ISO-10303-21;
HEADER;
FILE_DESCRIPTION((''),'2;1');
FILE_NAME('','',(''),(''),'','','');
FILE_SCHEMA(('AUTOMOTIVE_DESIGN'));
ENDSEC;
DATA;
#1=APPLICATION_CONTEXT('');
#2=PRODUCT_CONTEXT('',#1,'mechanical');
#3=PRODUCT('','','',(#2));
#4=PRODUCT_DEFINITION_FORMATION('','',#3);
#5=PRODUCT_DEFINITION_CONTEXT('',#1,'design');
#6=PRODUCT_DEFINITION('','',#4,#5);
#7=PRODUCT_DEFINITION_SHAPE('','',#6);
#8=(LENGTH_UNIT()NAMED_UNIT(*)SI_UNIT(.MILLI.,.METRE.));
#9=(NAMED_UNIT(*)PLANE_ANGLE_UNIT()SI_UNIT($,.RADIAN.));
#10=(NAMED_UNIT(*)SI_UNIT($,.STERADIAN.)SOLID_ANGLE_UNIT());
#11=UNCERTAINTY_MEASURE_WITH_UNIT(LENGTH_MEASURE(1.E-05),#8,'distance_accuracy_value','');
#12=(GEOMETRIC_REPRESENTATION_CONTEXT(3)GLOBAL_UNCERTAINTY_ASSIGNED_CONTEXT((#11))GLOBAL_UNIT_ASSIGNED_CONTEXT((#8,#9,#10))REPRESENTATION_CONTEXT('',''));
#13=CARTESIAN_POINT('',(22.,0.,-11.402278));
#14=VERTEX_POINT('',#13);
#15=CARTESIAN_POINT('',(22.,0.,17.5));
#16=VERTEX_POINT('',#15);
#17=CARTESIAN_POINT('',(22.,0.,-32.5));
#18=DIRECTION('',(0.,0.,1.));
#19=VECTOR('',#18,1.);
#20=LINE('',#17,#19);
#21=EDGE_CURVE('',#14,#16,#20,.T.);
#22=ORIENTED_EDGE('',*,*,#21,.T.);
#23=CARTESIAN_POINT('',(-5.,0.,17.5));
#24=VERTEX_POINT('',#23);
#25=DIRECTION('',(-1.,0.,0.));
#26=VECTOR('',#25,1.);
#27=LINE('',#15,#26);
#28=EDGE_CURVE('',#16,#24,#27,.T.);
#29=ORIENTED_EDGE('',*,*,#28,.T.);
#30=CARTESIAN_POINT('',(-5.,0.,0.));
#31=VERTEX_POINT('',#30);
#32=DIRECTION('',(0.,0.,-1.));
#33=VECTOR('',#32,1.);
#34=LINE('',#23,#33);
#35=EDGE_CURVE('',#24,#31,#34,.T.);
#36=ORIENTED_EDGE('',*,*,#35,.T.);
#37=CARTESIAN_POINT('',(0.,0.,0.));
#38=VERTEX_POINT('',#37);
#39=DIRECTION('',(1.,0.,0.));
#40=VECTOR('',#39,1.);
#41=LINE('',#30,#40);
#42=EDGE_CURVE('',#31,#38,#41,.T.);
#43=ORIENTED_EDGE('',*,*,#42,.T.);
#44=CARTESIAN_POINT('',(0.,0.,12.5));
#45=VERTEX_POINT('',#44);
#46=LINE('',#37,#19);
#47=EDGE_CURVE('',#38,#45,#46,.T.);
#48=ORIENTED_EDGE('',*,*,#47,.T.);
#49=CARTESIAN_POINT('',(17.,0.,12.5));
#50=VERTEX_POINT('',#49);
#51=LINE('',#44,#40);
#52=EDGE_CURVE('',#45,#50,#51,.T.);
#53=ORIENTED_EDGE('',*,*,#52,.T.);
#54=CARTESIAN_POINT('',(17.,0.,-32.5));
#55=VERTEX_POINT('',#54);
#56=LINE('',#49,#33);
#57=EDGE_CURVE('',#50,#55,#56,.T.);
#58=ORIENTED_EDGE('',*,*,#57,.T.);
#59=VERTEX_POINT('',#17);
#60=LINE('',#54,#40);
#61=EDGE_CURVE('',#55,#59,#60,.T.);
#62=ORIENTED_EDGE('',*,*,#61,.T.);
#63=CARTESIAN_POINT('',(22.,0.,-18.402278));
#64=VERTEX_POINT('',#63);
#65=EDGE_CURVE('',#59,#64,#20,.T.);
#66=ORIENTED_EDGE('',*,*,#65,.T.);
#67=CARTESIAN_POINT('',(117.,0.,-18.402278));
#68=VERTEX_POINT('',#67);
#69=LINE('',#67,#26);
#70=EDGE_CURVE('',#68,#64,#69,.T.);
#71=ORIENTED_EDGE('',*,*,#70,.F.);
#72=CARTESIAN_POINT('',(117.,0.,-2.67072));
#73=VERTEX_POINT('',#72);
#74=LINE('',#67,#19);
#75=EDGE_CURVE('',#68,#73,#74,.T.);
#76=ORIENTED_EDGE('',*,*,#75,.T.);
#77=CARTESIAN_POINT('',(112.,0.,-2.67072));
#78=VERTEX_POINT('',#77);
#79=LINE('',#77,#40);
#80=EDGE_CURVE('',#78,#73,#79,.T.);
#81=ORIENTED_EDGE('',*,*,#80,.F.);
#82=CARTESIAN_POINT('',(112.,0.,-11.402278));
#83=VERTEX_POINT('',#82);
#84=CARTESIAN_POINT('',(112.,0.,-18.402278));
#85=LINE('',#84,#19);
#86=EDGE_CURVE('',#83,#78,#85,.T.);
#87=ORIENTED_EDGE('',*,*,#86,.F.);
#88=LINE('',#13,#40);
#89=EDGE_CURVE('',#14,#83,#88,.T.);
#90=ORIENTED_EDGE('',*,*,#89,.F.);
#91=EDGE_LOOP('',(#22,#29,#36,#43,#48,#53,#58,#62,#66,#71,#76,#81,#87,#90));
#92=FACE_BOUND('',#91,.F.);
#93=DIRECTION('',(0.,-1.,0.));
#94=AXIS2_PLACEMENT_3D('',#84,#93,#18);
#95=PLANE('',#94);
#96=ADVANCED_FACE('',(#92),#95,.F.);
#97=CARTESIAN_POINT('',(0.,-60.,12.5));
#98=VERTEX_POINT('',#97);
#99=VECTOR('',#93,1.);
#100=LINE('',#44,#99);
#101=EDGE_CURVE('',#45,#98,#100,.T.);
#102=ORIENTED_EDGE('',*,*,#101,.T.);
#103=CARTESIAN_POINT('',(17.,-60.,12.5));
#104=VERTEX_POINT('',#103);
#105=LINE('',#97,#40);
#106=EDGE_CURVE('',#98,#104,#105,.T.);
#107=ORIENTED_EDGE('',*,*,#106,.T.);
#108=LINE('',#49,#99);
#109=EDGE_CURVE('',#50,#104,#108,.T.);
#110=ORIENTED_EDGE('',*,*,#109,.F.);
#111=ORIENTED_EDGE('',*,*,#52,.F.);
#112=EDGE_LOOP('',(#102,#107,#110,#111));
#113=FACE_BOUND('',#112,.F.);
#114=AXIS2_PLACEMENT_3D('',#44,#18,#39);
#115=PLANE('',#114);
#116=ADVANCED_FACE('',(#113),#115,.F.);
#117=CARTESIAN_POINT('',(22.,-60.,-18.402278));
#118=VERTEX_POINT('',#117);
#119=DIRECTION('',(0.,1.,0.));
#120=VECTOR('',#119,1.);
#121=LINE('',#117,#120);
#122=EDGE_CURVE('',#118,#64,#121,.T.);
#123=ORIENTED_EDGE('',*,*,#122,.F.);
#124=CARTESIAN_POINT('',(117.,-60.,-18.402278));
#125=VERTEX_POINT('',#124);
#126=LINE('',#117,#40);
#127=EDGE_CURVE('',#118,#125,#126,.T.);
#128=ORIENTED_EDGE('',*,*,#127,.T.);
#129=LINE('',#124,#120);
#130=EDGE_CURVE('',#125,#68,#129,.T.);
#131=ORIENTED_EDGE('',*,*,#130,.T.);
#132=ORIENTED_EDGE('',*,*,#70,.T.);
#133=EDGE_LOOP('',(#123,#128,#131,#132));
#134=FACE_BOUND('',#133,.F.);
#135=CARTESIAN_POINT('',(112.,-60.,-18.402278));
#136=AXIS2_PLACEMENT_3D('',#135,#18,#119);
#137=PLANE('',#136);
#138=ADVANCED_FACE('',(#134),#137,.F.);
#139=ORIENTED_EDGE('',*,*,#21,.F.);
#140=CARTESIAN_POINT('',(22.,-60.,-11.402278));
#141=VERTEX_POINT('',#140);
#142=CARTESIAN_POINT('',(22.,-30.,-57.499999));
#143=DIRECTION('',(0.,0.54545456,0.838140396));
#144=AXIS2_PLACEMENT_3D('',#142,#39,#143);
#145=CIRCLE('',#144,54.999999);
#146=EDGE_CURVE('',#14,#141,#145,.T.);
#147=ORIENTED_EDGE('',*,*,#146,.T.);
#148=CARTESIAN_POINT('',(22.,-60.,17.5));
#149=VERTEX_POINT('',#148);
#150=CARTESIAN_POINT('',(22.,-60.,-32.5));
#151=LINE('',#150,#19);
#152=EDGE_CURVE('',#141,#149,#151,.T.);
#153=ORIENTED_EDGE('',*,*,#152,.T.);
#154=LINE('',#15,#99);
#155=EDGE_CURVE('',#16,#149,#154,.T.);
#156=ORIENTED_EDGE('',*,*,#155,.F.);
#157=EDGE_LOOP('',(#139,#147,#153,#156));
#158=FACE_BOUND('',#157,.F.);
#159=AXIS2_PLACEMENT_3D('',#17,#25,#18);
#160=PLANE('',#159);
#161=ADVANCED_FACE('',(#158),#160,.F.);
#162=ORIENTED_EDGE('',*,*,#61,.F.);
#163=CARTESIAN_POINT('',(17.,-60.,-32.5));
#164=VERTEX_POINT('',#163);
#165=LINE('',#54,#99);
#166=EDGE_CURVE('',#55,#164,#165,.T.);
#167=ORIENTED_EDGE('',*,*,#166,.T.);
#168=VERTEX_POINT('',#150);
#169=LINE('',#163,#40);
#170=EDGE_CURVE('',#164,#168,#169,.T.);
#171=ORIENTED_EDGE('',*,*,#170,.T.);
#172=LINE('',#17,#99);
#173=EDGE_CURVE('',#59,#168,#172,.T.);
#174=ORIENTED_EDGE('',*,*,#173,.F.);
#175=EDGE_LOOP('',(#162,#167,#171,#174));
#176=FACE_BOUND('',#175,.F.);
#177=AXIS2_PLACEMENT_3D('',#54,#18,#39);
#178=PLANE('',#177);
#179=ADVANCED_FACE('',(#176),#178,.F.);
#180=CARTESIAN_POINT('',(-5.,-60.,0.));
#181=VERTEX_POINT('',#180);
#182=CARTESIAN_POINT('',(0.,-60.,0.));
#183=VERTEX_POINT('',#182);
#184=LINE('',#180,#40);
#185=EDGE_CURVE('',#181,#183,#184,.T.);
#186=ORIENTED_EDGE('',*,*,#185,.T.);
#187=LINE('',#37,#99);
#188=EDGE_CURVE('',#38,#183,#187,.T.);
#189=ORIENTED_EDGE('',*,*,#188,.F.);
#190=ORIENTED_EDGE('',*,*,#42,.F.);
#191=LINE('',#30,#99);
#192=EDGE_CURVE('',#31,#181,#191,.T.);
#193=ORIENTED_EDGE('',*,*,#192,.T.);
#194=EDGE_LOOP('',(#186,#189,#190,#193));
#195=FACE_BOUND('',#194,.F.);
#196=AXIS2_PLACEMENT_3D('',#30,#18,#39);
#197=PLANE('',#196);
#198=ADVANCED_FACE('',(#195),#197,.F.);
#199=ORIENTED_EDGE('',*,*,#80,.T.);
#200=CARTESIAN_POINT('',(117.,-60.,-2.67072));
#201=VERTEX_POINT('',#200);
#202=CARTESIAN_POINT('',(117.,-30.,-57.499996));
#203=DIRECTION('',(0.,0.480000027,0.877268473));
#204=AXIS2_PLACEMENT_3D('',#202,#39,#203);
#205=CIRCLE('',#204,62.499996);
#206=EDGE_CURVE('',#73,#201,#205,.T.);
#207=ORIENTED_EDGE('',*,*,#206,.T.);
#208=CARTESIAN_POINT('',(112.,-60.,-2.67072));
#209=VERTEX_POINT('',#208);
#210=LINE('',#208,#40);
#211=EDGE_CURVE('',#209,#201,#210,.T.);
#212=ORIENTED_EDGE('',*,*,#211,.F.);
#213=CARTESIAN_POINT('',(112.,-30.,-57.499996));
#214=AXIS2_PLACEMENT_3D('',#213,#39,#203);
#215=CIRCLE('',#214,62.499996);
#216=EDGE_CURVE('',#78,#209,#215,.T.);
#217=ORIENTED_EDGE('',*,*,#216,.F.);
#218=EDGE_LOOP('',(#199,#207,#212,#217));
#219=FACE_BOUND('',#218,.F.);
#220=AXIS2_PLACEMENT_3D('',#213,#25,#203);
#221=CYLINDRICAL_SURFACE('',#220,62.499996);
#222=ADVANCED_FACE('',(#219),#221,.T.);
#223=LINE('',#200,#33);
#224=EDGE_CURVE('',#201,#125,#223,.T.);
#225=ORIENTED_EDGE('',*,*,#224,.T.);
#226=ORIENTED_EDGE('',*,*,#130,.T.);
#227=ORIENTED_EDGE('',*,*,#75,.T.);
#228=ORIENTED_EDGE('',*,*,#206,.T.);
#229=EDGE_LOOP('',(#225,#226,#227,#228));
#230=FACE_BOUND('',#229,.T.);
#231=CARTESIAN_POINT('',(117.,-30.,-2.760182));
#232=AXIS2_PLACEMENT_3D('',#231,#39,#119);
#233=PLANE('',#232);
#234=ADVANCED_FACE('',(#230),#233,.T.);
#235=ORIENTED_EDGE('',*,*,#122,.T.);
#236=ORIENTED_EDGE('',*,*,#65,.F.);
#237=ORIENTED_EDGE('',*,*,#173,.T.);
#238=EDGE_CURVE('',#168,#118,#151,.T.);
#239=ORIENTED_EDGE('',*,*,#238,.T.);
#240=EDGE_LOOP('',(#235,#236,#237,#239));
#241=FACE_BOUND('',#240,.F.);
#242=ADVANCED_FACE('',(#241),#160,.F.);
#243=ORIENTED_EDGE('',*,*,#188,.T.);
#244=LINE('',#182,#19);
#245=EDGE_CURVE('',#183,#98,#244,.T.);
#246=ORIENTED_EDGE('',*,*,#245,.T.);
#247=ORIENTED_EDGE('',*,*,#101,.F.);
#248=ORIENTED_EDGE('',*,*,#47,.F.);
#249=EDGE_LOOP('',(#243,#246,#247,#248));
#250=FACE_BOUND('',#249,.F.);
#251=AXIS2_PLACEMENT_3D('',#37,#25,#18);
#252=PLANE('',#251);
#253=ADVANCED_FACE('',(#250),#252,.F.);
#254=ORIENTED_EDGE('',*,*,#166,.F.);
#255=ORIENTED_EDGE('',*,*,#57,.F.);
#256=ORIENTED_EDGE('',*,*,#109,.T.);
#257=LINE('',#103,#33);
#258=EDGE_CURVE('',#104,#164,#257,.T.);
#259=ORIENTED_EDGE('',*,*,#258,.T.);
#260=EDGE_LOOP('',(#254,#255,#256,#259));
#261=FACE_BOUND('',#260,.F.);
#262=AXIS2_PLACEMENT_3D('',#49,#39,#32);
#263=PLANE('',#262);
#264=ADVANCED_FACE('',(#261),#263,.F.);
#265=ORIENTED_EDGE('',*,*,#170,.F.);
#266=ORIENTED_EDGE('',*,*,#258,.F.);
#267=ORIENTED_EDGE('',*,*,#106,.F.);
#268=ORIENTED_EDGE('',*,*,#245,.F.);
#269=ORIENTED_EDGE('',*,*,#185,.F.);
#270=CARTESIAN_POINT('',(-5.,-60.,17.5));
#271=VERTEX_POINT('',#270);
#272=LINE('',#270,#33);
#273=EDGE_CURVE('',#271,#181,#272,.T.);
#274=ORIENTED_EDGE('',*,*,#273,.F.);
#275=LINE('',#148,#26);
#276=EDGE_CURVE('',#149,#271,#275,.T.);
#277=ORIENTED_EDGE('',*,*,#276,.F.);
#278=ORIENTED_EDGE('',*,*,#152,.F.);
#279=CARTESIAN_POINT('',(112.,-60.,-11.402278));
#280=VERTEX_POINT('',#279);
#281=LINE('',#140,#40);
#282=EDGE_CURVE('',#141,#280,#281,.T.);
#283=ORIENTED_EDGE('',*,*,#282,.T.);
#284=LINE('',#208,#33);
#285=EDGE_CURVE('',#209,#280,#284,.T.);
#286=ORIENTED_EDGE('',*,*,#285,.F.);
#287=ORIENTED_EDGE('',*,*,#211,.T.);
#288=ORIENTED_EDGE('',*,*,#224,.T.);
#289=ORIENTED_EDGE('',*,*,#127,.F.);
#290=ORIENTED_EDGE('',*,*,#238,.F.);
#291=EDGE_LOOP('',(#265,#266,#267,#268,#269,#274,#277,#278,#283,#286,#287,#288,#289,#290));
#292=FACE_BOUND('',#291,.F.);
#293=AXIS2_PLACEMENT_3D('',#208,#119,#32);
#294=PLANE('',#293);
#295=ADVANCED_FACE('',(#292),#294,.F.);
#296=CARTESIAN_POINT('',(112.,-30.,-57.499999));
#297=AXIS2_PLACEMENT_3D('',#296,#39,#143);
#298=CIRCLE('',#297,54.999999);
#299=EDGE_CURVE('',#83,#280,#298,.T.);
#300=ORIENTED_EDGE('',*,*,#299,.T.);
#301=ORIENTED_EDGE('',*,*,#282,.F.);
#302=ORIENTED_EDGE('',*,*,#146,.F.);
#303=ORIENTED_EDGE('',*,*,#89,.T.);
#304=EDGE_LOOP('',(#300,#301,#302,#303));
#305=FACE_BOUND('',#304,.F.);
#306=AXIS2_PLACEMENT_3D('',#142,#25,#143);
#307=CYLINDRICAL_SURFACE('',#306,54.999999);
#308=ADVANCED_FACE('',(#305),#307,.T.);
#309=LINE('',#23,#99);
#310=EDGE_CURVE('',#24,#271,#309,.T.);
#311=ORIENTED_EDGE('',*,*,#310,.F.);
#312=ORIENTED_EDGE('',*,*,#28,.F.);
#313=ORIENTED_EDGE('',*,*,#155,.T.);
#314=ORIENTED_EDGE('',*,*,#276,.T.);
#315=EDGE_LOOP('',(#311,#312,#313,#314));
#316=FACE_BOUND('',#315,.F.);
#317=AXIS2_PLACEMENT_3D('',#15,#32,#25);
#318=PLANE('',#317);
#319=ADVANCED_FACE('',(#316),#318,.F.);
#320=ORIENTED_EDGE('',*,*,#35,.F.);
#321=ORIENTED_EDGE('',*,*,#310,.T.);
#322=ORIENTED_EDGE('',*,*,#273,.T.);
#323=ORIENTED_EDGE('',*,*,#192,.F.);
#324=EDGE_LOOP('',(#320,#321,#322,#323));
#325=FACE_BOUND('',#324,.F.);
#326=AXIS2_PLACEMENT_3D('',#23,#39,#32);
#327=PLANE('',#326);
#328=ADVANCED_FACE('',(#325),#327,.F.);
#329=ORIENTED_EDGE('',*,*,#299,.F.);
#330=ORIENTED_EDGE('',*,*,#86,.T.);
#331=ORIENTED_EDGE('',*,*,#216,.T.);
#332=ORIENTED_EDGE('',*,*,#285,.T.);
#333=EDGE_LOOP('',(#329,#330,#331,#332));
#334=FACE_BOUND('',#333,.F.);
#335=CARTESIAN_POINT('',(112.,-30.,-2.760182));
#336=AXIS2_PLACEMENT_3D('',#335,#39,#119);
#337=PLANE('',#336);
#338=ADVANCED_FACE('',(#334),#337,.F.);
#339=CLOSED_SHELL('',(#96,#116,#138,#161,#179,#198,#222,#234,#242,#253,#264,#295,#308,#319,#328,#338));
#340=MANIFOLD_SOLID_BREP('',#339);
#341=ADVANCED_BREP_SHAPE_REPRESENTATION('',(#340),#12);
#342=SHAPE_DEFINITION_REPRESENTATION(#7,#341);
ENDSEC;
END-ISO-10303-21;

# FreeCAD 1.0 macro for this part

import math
import FreeCAD as App
import Part
import Sketcher
from FreeCAD import Vector
Q = App.Units.Quantity


def add_polygon(sketch, points):
    """Adds a closed chain of lines whose ends are joined by coincident constraints."""
    first, n = sketch.GeometryCount, len(points)
    for a, b in zip(points, points[1:] + points[:1]):
        sketch.addGeometry(Part.LineSegment(App.Vector(*a, 0), App.Vector(*b, 0)), False)
    for i in range(n):
        sketch.addConstraint(Sketcher.Constraint("Coincident", first + i, 2, first + (i + 1) % n, 1))

doc = App.newDocument("Part")
body = doc.addObject("PartDesign::Body", "Body")

# Sketch on XZ plane
sketch1 = body.newObject("Sketcher::SketchObject", "Sketch")
sketch1.AttachmentSupport = (doc.getObject("XZ_Plane"), [""])
sketch1.MapMode = "FlatFace"
add_polygon(sketch1, [(-5, 0), (0, 0), (0, 12), (17, 12), (17, -32), (22, -32), (22, 18), (-5, 18)])  # lines 0-7
sketch1.addConstraint(Sketcher.Constraint("Horizontal", 0))
sketch1.addConstraint(Sketcher.Constraint("Vertical", 1))
sketch1.addConstraint(Sketcher.Constraint("Horizontal", 2))
sketch1.addConstraint(Sketcher.Constraint("Vertical", 3))
sketch1.addConstraint(Sketcher.Constraint("Horizontal", 4))
sketch1.addConstraint(Sketcher.Constraint("Vertical", 5))
sketch1.addConstraint(Sketcher.Constraint("Horizontal", 6))
sketch1.addConstraint(Sketcher.Constraint("Vertical", 7))
sketch1.addConstraint(Sketcher.Constraint("Coincident", 0, 2, -1, 1))
sketch1.addConstraint(Sketcher.Constraint("Equal", 0, 4))
sketch1.addConstraint(Sketcher.Constraint("DistanceX", 0, 1, 0, 2, Q("5 mm")))
sketch1.addConstraint(Sketcher.Constraint("DistanceX", 2, 1, 2, 2, Q("17 mm")))
sketch1.addConstraint(Sketcher.Constraint("DistanceY", 3, 2, 3, 1, Q("45 mm")))
sketch1.addConstraint(Sketcher.Constraint("DistanceY", 5, 1, 5, 2, Q("50 mm")))
sketch1.addConstraint(Sketcher.Constraint("DistanceY", 1, 1, 1, 2, Q("12.5 mm")))
pad1 = body.newObject("PartDesign::Pad", "Pad")
pad1.Profile = sketch1
pad1.Length = 60

# Sketch on YZ plane
sketch2 = body.newObject("Sketcher::SketchObject", "Sketch001")
sketch2.AttachmentSupport = (doc.getObject("YZ_Plane"), [""])
sketch2.MapMode = "FlatFace"
sketch2.AttachmentOffset = App.Placement(Vector(0, 0, 22), App.Rotation())
sketch2.addGeometry(Part.LineSegment(Vector(-60, -18, 0), Vector(0, -18, 0)), False)
sketch2.addGeometry(Part.LineSegment(Vector(0, -18, 0), Vector(0, -11, 0)), False)
sketch2.addGeometry(Part.ArcOfCircle(Part.Circle(Vector(-30, -57, 0), Vector(0, 0, 1), 55), math.radians(57), math.radians(123)), False)
sketch2.addGeometry(Part.LineSegment(Vector(-60, -11, 0), Vector(-60, -18, 0)), False)
sketch2.addConstraint(Sketcher.Constraint("Coincident", 0, 2, 1, 1))
sketch2.addConstraint(Sketcher.Constraint("Coincident", 1, 2, 2, 1))
sketch2.addConstraint(Sketcher.Constraint("Coincident", 2, 2, 3, 1))
sketch2.addConstraint(Sketcher.Constraint("Coincident", 3, 2, 0, 1))
sketch2.addConstraint(Sketcher.Constraint("Horizontal", 0))
sketch2.addConstraint(Sketcher.Constraint("Vertical", 1))
sketch2.addConstraint(Sketcher.Constraint("Vertical", 3))
sketch2.addConstraint(Sketcher.Constraint("PointOnObject", 0, 2, -2))
sketch2.addConstraint(Sketcher.Constraint("Horizontal", 1, 2, 2, 2))
sketch2.addConstraint(Sketcher.Constraint("Radius", 2, Q("54.999999 mm")))
sketch2.addConstraint(Sketcher.Constraint("DistanceX", 0, 1, 0, 2, Q("60 mm")))
sketch2.addConstraint(Sketcher.Constraint("DistanceY", 1, 1, 1, 2, Q("7 mm")))
sketch2.addConstraint(Sketcher.Constraint("DistanceY", 2, 3, -1, 1, Q("57.499999 mm")))
pad2 = body.newObject("PartDesign::Pad", "Pad001")
pad2.Profile = sketch2
pad2.Length = 90

# Sketch on YZ plane
sketch3 = body.newObject("Sketcher::SketchObject", "Sketch002")
sketch3.AttachmentSupport = (doc.getObject("YZ_Plane"), [""])
sketch3.MapMode = "FlatFace"
sketch3.AttachmentOffset = App.Placement(Vector(0, 0, 112), App.Rotation())
sketch3.addGeometry(Part.ArcOfCircle(Part.Circle(Vector(-30, -57, 0), Vector(0, 0, 1), 62), math.radians(61), math.radians(119)), False)
sketch3.addGeometry(Part.LineSegment(Vector(-60, -3, 0), Vector(-60, -18, 0)), False)
sketch3.addGeometry(Part.LineSegment(Vector(-60, -18, 0), Vector(0, -18, 0)), False)
sketch3.addGeometry(Part.LineSegment(Vector(0, -18, 0), Vector(0, -3, 0)), False)
sketch3.addConstraint(Sketcher.Constraint("Coincident", 0, 2, 1, 1))
sketch3.addConstraint(Sketcher.Constraint("Coincident", 1, 2, 2, 1))
sketch3.addConstraint(Sketcher.Constraint("Coincident", 2, 2, 3, 1))
sketch3.addConstraint(Sketcher.Constraint("Coincident", 3, 2, 0, 1))
sketch3.addConstraint(Sketcher.Constraint("Vertical", 1))
sketch3.addConstraint(Sketcher.Constraint("Horizontal", 2))
sketch3.addConstraint(Sketcher.Constraint("Vertical", 3))
sketch3.addConstraint(Sketcher.Constraint("PointOnObject", 2, 2, -2))
sketch3.addConstraint(Sketcher.Constraint("Horizontal", 0, 2, 3, 2))
sketch3.addConstraint(Sketcher.Constraint("DistanceX", 2, 1, 2, 2, Q("60 mm")))
sketch3.addConstraint(Sketcher.Constraint("Radius", 0, Q("62.499996 mm")))
sketch3.addConstraint(Sketcher.Constraint("DistanceY", 1, 2, 1, 1, Q("15.731558 mm")))
sketch3.addConstraint(Sketcher.Constraint("DistanceY", 0, 2, -1, 1, Q("2.67072 mm")))
pad3 = body.newObject("PartDesign::Pad", "Pad002")
pad3.Profile = sketch3
pad3.Length = 5

doc.recompute()
